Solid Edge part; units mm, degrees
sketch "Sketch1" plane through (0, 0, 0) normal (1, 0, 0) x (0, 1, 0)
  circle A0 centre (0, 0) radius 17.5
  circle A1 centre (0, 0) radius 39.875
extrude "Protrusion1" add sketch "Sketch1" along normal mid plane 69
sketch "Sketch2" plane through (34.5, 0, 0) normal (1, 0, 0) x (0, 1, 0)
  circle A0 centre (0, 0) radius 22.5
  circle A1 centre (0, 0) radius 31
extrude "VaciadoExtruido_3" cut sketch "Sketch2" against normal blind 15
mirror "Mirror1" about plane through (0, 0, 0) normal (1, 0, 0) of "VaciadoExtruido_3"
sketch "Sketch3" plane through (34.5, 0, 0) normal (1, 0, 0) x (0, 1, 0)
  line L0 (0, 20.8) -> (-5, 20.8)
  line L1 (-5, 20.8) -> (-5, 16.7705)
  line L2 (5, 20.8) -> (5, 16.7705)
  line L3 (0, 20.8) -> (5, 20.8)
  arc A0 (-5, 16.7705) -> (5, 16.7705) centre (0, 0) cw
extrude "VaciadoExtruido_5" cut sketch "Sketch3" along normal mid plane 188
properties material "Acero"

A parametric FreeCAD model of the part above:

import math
import FreeCAD as App
import Part
import Sketcher
from FreeCAD import Vector
Q = App.Units.Quantity

doc = App.newDocument("Part")
body = doc.addObject("PartDesign::Body", "Body")

# Sketch on YZ plane
sketch1 = body.newObject("Sketcher::SketchObject", "Sketch")
sketch1.AttachmentSupport = (doc.getObject("YZ_Plane"), [""])
sketch1.MapMode = "FlatFace"
sketch1.addGeometry(Part.Circle(Vector(0, 0, 0), Vector(0, 0, 1), 40), False)
sketch1.addGeometry(Part.Circle(Vector(0, 0, 0), Vector(0, 0, 1), 18), False)
sketch1.addConstraint(Sketcher.Constraint("Coincident", 0, 3, -1, 1))
sketch1.addConstraint(Sketcher.Constraint("Coincident", 1, 3, -1, 1))
sketch1.addConstraint(Sketcher.Constraint("Diameter", 1, Q("35 mm")))
sketch1.addConstraint(Sketcher.Constraint("Diameter", 0, Q("79.75 mm")))
pad1 = body.newObject("PartDesign::Pad", "Pad")
pad1.Profile = sketch1
pad1.Length = 69
pad1.Midplane = True

# Sketch on YZ plane
sketch2 = body.newObject("Sketcher::SketchObject", "Sketch001")
sketch2.AttachmentSupport = (doc.getObject("YZ_Plane"), [""])
sketch2.MapMode = "FlatFace"
sketch2.AttachmentOffset = App.Placement(Vector(0, 0, 34.5), App.Rotation())
sketch2.addGeometry(Part.Circle(Vector(0, 0, 0), Vector(0, 0, 1), 31), False)
sketch2.addGeometry(Part.Circle(Vector(0, 0, 0), Vector(0, 0, 1), 22), False)
sketch2.addConstraint(Sketcher.Constraint("Coincident", 0, 3, -1, 1))
sketch2.addConstraint(Sketcher.Constraint("Coincident", 1, 3, -1, 1))
sketch2.addConstraint(Sketcher.Constraint("Diameter", 0, Q("62 mm")))
sketch2.addConstraint(Sketcher.Constraint("Diameter", 1, Q("45 mm")))
pocket1 = body.newObject("PartDesign::Pocket", "Pocket")
pocket1.Profile = sketch2
pocket1.Length = 15
doc.recompute()

mirrored = body.newObject("PartDesign::Mirrored", "Mirrored")
mirrored.Originals = [pocket1]
mirrored.MirrorPlane = (doc.getObject("YZ_Plane"), [""])
body.Tip = mirrored

# Sketch on YZ plane
sketch3 = body.newObject("Sketcher::SketchObject", "Sketch002")
sketch3.AttachmentSupport = (doc.getObject("YZ_Plane"), [""])
sketch3.MapMode = "FlatFace"
sketch3.AttachmentOffset = App.Placement(Vector(0, 0, 34.5), App.Rotation())
sketch3.addGeometry(Part.LineSegment(Vector(5, 20.8, 0), Vector(-5, 20.8, 0)), False)
sketch3.addGeometry(Part.LineSegment(Vector(-5, 20.8, 0), Vector(-5, 16.8, 0)), False)
sketch3.addGeometry(Part.ArcOfCircle(Part.Circle(Vector(0, 0, 0), Vector(0, 0, 1), 17.5), math.radians(73), math.radians(107)), False)
sketch3.addGeometry(Part.LineSegment(Vector(5, 16.8, 0), Vector(5, 20.8, 0)), False)
sketch3.addConstraint(Sketcher.Constraint("Coincident", 0, 2, 1, 1))
sketch3.addConstraint(Sketcher.Constraint("Coincident", 1, 2, 2, 2))
sketch3.addConstraint(Sketcher.Constraint("Coincident", 2, 1, 3, 1))
sketch3.addConstraint(Sketcher.Constraint("Coincident", 3, 2, 0, 1))
sketch3.addConstraint(Sketcher.Constraint("Horizontal", 0))
sketch3.addConstraint(Sketcher.Constraint("Vertical", 1))
sketch3.addConstraint(Sketcher.Constraint("Vertical", 3))
sketch3.addConstraint(Sketcher.Constraint("Coincident", 2, 3, -1, 1))
sketch3.addConstraint(Sketcher.Constraint("Horizontal", 1, 2, 2, 1))
sketch3.addConstraint(Sketcher.Constraint("Radius", 2, Q("17.5 mm")))
sketch3.addConstraint(Sketcher.Constraint("DistanceX", 0, 2, 0, 1, Q("10 mm")))
sketch3.addConstraint(Sketcher.Constraint("DistanceY", -1, 1, 0, 2, Q("20.8 mm")))
pocket2 = body.newObject("PartDesign::Pocket", "Pocket001")
pocket2.Profile = sketch3
pocket2.Length = 188
pocket2.Midplane = True

doc.recompute()
